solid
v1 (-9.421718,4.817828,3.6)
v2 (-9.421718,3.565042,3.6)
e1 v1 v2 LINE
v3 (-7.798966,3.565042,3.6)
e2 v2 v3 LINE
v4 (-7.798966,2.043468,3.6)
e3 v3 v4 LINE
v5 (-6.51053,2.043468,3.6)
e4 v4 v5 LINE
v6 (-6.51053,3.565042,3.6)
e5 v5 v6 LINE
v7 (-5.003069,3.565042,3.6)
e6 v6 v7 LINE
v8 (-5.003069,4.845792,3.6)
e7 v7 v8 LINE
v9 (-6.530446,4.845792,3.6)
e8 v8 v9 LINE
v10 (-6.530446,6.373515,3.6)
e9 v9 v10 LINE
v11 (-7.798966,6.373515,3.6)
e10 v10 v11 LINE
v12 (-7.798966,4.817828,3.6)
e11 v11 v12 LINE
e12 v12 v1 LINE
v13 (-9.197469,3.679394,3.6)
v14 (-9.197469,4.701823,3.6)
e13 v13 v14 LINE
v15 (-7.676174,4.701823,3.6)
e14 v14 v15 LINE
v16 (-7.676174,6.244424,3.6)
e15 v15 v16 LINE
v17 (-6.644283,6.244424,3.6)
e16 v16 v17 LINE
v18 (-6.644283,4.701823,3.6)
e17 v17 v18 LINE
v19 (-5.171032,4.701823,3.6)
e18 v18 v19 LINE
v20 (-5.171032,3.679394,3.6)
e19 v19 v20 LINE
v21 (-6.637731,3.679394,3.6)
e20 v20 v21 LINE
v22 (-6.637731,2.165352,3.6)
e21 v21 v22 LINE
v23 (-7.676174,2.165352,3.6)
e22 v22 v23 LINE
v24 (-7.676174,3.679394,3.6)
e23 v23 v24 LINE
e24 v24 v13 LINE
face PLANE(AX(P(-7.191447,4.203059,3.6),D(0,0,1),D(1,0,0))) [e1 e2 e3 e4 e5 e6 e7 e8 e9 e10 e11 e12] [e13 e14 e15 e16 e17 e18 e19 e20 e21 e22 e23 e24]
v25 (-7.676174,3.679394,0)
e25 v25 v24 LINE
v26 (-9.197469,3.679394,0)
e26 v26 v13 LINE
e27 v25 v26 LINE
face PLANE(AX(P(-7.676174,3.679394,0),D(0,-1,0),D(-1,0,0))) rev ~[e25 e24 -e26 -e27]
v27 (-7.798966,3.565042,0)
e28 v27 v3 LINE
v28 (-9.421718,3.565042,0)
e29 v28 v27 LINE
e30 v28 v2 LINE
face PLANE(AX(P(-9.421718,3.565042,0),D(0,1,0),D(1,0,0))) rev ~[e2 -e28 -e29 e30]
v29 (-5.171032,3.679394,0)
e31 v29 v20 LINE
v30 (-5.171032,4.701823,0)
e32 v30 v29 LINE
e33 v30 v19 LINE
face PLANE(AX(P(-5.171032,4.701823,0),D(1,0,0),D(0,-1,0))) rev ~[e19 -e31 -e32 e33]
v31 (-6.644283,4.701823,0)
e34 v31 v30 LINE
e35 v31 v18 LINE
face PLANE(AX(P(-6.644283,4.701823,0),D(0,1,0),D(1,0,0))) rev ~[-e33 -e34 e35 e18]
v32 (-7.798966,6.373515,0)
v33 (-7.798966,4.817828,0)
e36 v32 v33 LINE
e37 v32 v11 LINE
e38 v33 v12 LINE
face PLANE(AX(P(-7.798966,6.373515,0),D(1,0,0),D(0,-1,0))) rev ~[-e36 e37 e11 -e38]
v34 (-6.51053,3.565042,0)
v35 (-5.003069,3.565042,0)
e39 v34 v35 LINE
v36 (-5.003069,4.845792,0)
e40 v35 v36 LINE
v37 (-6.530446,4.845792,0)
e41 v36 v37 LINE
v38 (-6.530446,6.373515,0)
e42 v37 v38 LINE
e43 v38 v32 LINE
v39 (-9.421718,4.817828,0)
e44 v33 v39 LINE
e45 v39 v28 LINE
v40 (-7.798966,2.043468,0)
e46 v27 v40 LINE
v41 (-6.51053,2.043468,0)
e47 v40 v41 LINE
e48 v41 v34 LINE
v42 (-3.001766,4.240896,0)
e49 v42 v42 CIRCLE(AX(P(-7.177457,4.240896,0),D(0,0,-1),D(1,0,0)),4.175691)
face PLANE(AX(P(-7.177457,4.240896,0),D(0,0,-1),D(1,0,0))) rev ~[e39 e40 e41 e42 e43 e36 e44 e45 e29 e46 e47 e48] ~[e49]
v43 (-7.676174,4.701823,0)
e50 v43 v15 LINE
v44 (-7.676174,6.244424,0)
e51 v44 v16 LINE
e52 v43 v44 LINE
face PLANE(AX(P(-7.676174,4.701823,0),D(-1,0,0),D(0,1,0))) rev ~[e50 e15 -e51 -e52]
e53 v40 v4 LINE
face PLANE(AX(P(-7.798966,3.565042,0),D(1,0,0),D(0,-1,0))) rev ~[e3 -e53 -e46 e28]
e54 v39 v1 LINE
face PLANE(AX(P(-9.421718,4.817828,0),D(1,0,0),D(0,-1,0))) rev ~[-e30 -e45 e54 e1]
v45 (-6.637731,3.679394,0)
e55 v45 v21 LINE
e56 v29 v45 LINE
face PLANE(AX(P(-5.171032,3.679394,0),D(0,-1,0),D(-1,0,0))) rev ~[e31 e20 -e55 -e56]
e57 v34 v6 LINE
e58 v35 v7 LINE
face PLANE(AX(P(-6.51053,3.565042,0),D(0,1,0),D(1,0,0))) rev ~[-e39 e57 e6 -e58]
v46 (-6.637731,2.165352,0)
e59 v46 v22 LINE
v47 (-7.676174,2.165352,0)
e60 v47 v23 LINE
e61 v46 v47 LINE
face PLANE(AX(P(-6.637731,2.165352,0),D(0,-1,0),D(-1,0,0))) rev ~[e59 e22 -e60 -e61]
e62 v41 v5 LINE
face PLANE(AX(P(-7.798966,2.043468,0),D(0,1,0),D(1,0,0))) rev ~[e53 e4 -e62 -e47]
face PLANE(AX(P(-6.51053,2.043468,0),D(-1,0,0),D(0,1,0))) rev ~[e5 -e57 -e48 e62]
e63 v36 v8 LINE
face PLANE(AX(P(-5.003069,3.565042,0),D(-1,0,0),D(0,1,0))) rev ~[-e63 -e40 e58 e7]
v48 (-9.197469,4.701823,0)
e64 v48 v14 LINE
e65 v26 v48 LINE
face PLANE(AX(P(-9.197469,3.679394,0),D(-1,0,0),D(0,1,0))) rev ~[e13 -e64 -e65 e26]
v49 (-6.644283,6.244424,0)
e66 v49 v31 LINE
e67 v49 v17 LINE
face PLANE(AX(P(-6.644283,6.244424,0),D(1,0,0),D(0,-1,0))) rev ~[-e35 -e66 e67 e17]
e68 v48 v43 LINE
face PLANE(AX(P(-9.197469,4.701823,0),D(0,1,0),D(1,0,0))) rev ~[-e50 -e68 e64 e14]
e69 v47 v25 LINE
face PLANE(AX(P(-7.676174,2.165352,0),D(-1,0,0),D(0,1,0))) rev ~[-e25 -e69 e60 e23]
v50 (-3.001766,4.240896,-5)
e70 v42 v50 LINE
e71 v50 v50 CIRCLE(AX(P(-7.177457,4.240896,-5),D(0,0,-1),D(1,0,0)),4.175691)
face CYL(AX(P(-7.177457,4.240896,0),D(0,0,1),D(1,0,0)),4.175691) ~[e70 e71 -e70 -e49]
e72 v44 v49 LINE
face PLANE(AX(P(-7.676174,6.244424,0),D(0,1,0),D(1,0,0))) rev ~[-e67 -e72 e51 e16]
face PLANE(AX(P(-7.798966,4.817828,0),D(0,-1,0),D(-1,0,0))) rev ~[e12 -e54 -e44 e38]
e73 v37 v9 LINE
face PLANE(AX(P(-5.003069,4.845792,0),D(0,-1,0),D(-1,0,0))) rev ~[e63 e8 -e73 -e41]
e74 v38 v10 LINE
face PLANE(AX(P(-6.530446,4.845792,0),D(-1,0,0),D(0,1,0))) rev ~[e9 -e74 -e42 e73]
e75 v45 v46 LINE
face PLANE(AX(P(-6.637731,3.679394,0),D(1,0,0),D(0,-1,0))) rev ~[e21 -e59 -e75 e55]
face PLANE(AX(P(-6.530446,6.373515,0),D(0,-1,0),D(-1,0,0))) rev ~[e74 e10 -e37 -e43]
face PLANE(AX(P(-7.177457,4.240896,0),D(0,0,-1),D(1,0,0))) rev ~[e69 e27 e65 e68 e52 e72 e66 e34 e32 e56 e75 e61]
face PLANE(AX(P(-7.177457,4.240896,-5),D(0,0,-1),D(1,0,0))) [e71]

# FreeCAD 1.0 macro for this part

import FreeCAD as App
import Part
import Sketcher

doc = App.newDocument("Part")
params = doc.addObject("Spreadsheet::Sheet", "Params")
for row, (alias, value) in enumerate([
    ("pad1_length", "3.6 mm"),
    ("pad2_length", "5 mm"),
], start=1):
    params.set(f"A{row}", alias)
    params.set(f"B{row}", "=" + value)
    params.setAlias(f"B{row}", alias)

body = doc.addObject("PartDesign::Body", "Body")

# Sketch on XY plane
sketch1 = body.newObject("Sketcher::SketchObject", "Sketch")
sketch1.AttachmentSupport = (doc.getObject("XY_Plane"), [""])
sketch1.MapMode = "FlatFace"
sketch1.addGeometry(Part.LineSegment(App.Vector(-7.8, 3.6, 0), App.Vector(-7.8, 2, 0)), False)
sketch1.addGeometry(Part.LineSegment(App.Vector(-7.8, 2, 0), App.Vector(-6.5, 2, 0)), False)
sketch1.addGeometry(Part.LineSegment(App.Vector(-6.5, 2, 0), App.Vector(-6.5, 3.6, 0)), False)
sketch1.addGeometry(Part.LineSegment(App.Vector(-6.5, 3.6, 0), App.Vector(-5, 3.6, 0)), False)
sketch1.addGeometry(Part.LineSegment(App.Vector(-5, 3.6, 0), App.Vector(-5, 4.8, 0)), False)
sketch1.addGeometry(Part.LineSegment(App.Vector(-5, 4.8, 0), App.Vector(-6.5, 4.8, 0)), False)
sketch1.addGeometry(Part.LineSegment(App.Vector(-6.5, 4.8, 0), App.Vector(-6.5, 6.4, 0)), False)
sketch1.addGeometry(Part.LineSegment(App.Vector(-6.5, 6.4, 0), App.Vector(-7.8, 6.4, 0)), False)
sketch1.addGeometry(Part.LineSegment(App.Vector(-7.8, 6.4, 0), App.Vector(-7.8, 4.8, 0)), False)
sketch1.addGeometry(Part.LineSegment(App.Vector(-7.8, 4.8, 0), App.Vector(-9.4, 4.8, 0)), False)
sketch1.addGeometry(Part.LineSegment(App.Vector(-9.4, 4.8, 0), App.Vector(-9.4, 3.6, 0)), False)
sketch1.addGeometry(Part.LineSegment(App.Vector(-9.4, 3.6, 0), App.Vector(-7.8, 3.6, 0)), False)
sketch1.addGeometry(Part.LineSegment(App.Vector(-9.2, 4.7, 0), App.Vector(-7.7, 4.7, 0)), False)
sketch1.addGeometry(Part.LineSegment(App.Vector(-7.7, 4.7, 0), App.Vector(-7.7, 6.2, 0)), False)
sketch1.addGeometry(Part.LineSegment(App.Vector(-7.7, 6.2, 0), App.Vector(-6.6, 6.2, 0)), False)
sketch1.addGeometry(Part.LineSegment(App.Vector(-6.6, 6.2, 0), App.Vector(-6.6, 4.7, 0)), False)
sketch1.addGeometry(Part.LineSegment(App.Vector(-6.6, 4.7, 0), App.Vector(-5.2, 4.7, 0)), False)
sketch1.addGeometry(Part.LineSegment(App.Vector(-5.2, 4.7, 0), App.Vector(-5.2, 3.7, 0)), False)
sketch1.addGeometry(Part.LineSegment(App.Vector(-5.2, 3.7, 0), App.Vector(-6.6, 3.7, 0)), False)
sketch1.addGeometry(Part.LineSegment(App.Vector(-6.6, 3.7, 0), App.Vector(-6.6, 2.2, 0)), False)
sketch1.addGeometry(Part.LineSegment(App.Vector(-6.6, 2.2, 0), App.Vector(-7.7, 2.2, 0)), False)
sketch1.addGeometry(Part.LineSegment(App.Vector(-7.7, 2.2, 0), App.Vector(-7.7, 3.7, 0)), False)
sketch1.addGeometry(Part.LineSegment(App.Vector(-7.7, 3.7, 0), App.Vector(-9.2, 3.7, 0)), False)
sketch1.addGeometry(Part.LineSegment(App.Vector(-9.2, 3.7, 0), App.Vector(-9.2, 4.7, 0)), False)
sketch1.addConstraint(Sketcher.Constraint("Coincident", 0, 2, 1, 1))
sketch1.addConstraint(Sketcher.Constraint("Coincident", 1, 2, 2, 1))
sketch1.addConstraint(Sketcher.Constraint("Coincident", 2, 2, 3, 1))
sketch1.addConstraint(Sketcher.Constraint("Coincident", 3, 2, 4, 1))
sketch1.addConstraint(Sketcher.Constraint("Coincident", 4, 2, 5, 1))
sketch1.addConstraint(Sketcher.Constraint("Coincident", 5, 2, 6, 1))
sketch1.addConstraint(Sketcher.Constraint("Coincident", 6, 2, 7, 1))
sketch1.addConstraint(Sketcher.Constraint("Coincident", 7, 2, 8, 1))
sketch1.addConstraint(Sketcher.Constraint("Coincident", 8, 2, 9, 1))
sketch1.addConstraint(Sketcher.Constraint("Coincident", 9, 2, 10, 1))
sketch1.addConstraint(Sketcher.Constraint("Coincident", 10, 2, 11, 1))
sketch1.addConstraint(Sketcher.Constraint("Coincident", 11, 2, 0, 1))
sketch1.addConstraint(Sketcher.Constraint("Coincident", 12, 2, 13, 1))
sketch1.addConstraint(Sketcher.Constraint("Coincident", 13, 2, 14, 1))
sketch1.addConstraint(Sketcher.Constraint("Coincident", 14, 2, 15, 1))
sketch1.addConstraint(Sketcher.Constraint("Coincident", 15, 2, 16, 1))
sketch1.addConstraint(Sketcher.Constraint("Coincident", 16, 2, 17, 1))
sketch1.addConstraint(Sketcher.Constraint("Coincident", 17, 2, 18, 1))
sketch1.addConstraint(Sketcher.Constraint("Coincident", 18, 2, 19, 1))
sketch1.addConstraint(Sketcher.Constraint("Coincident", 19, 2, 20, 1))
sketch1.addConstraint(Sketcher.Constraint("Coincident", 20, 2, 21, 1))
sketch1.addConstraint(Sketcher.Constraint("Coincident", 21, 2, 22, 1))
sketch1.addConstraint(Sketcher.Constraint("Coincident", 22, 2, 23, 1))
sketch1.addConstraint(Sketcher.Constraint("Coincident", 23, 2, 12, 1))
sketch1.addConstraint(Sketcher.Constraint("Vertical", 0))
sketch1.addConstraint(Sketcher.Constraint("Horizontal", 1))
sketch1.addConstraint(Sketcher.Constraint("Vertical", 2))
sketch1.addConstraint(Sketcher.Constraint("Horizontal", 3))
sketch1.addConstraint(Sketcher.Constraint("Vertical", 4))
sketch1.addConstraint(Sketcher.Constraint("Horizontal", 5))
sketch1.addConstraint(Sketcher.Constraint("Vertical", 6))
sketch1.addConstraint(Sketcher.Constraint("Horizontal", 7))
sketch1.addConstraint(Sketcher.Constraint("Vertical", 8))
sketch1.addConstraint(Sketcher.Constraint("Horizontal", 9))
sketch1.addConstraint(Sketcher.Constraint("Vertical", 10))
sketch1.addConstraint(Sketcher.Constraint("Horizontal", 11))
sketch1.addConstraint(Sketcher.Constraint("Horizontal", 12))
sketch1.addConstraint(Sketcher.Constraint("Vertical", 13))
sketch1.addConstraint(Sketcher.Constraint("Horizontal", 14))
sketch1.addConstraint(Sketcher.Constraint("Vertical", 15))
sketch1.addConstraint(Sketcher.Constraint("Horizontal", 16))
sketch1.addConstraint(Sketcher.Constraint("Vertical", 17))
sketch1.addConstraint(Sketcher.Constraint("Horizontal", 18))
sketch1.addConstraint(Sketcher.Constraint("Vertical", 19))
sketch1.addConstraint(Sketcher.Constraint("Horizontal", 20))
sketch1.addConstraint(Sketcher.Constraint("Vertical", 21))
sketch1.addConstraint(Sketcher.Constraint("Horizontal", 22))
sketch1.addConstraint(Sketcher.Constraint("Vertical", 23))
sketch1.addConstraint(Sketcher.Constraint("Horizontal", 3, 2, 10, 2))
sketch1.addConstraint(Sketcher.Constraint("Horizontal", 12, 2, 15, 2))
sketch1.addConstraint(Sketcher.Constraint("Horizontal", 18, 2, 21, 2))
sketch1.addConstraint(Sketcher.Constraint("Vertical", 0, 2, 7, 2))
sketch1.addConstraint(Sketcher.Constraint("Vertical", 13, 2, 20, 2))
sketch1.addConstraint(Sketcher.Constraint("DistanceX", 18, 2, 18, 1, 1.466699))
sketch1.addConstraint(Sketcher.Constraint("DistanceY", 13, 1, 13, 2, 1.542601))
sketch1.addConstraint(Sketcher.Constraint("DistanceX", 3, 1, 3, 2, 1.507461))
sketch1.addConstraint(Sketcher.Constraint("DistanceX", 7, 2, 7, 1, 1.26852))
sketch1.addConstraint(Sketcher.Constraint("DistanceX", 14, 1, 14, 2, 1.031891))
sketch1.addConstraint(Sketcher.Constraint("DistanceX", 16, 1, 16, 2, 1.473251))
sketch1.addConstraint(Sketcher.Constraint("DistanceY", 4, 1, 4, 2, 1.28075))
sketch1.addConstraint(Sketcher.Constraint("DistanceY", 17, 2, 17, 1, 1.022429))
sketch1.addConstraint(Sketcher.Constraint("DistanceY", 19, 2, 19, 1, 1.514042))
sketch1.addConstraint(Sketcher.Constraint("DistanceY", 17, 2, 4, 2, 1.166398))
sketch1.addConstraint(Sketcher.Constraint("DistanceX", 18, 2, 2, 2, 0.127201))
sketch1.addConstraint(Sketcher.Constraint("DistanceX", 1, 1, 1, 2, 1.288436))
sketch1.addConstraint(Sketcher.Constraint("DistanceX", 9, 2, 9, 1, 1.622752))
sketch1.addConstraint(Sketcher.Constraint("DistanceX", 12, 1, 12, 2, 1.521295))
sketch1.addConstraint(Sketcher.Constraint("DistanceY", 0, 2, 0, 1, 1.521574))
sketch1.addConstraint(Sketcher.Constraint("DistanceY", 6, 1, 6, 2, 1.527723))
sketch1.addConstraint(Sketcher.Constraint("DistanceY", 8, 2, 8, 1, 1.555687))
sketch1.addConstraint(Sketcher.Constraint("DistanceX", 1, 2, -1, 1, 6.51053))
sketch1.addConstraint(Sketcher.Constraint("DistanceY", -1, 1, 2, 2, 3.565042))
pad1 = body.newObject("PartDesign::Pad", "Pad")
pad1.Profile = sketch1
pad1.setExpression("Length", "Params.pad1_length")

# Sketch on XY plane
sketch2 = body.newObject("Sketcher::SketchObject", "Sketch001")
sketch2.AttachmentSupport = (doc.getObject("XY_Plane"), [""])
sketch2.MapMode = "FlatFace"
sketch2.addGeometry(Part.Circle(App.Vector(-7.2, 4.2, 0), App.Vector(0, 0, 1), 4.2), False)
sketch2.addConstraint(Sketcher.Constraint("Diameter", 0, 8.351382))
sketch2.addConstraint(Sketcher.Constraint("DistanceX", 0, 3, -1, 1, 7.177457))
sketch2.addConstraint(Sketcher.Constraint("DistanceY", -1, 1, 0, 3, 4.240896))
pad2 = body.newObject("PartDesign::Pad", "Pad001")
pad2.Profile = sketch2
pad2.setExpression("Length", "Params.pad2_length")
pad2.Reversed = True

doc.recompute()
